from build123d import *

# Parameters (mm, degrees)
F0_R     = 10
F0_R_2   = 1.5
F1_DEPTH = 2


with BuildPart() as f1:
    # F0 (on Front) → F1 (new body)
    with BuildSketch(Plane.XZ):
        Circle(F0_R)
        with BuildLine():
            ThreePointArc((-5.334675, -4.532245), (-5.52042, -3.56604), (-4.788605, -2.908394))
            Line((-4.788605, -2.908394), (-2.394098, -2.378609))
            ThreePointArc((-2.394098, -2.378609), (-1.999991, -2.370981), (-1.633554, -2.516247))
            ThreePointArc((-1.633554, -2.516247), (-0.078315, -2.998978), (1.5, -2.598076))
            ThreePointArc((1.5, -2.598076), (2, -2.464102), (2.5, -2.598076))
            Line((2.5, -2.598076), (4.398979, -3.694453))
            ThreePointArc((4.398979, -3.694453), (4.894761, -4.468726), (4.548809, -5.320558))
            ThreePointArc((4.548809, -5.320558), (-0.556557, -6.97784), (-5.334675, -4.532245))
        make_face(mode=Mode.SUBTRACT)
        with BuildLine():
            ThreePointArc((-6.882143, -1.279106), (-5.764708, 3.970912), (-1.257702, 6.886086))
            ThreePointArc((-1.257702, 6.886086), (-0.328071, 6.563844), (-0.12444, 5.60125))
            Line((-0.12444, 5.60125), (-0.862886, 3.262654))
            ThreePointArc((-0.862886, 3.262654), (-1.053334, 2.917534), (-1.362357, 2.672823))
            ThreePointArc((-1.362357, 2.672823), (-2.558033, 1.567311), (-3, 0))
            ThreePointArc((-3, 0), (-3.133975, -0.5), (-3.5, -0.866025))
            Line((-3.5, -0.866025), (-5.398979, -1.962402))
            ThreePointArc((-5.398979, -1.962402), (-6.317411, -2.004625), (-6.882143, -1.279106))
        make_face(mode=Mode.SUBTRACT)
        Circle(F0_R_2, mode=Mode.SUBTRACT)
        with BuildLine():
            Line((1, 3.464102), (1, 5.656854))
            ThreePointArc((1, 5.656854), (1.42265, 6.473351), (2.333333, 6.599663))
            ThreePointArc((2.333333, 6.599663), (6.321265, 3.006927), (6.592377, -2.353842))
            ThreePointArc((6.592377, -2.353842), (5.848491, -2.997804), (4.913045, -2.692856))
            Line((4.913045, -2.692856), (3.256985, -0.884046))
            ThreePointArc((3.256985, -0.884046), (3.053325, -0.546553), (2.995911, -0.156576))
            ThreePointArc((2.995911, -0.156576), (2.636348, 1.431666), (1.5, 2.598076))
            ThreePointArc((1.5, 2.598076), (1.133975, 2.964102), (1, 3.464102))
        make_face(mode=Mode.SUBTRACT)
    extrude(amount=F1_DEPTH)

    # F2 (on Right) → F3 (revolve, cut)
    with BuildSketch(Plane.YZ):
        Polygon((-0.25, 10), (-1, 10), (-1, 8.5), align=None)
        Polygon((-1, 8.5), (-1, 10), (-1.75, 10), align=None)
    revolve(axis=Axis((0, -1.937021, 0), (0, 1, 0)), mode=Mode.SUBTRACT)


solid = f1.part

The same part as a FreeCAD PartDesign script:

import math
import FreeCAD as App
import Part
import Sketcher
Q = App.Units.Quantity

doc = App.newDocument("Part")
params = doc.addObject("Spreadsheet::Sheet", "Params")
for row, (alias, value) in enumerate([
    ("sketch1_diameter", "20 mm"),
    ("sketch1_diameter2", "3 mm"),
    ("sketch1_radius", "6.999999 mm"),
    ("sketch1_radius2", "1 mm"),
    ("sketch1_radius3", "1 mm"),
    ("pad1_length", "2 mm"),
    ("sketch2_width", "1.5 mm"),
    ("groove_angle", "360 deg"),
], start=1):
    params.set(f"A{row}", alias)
    params.set(f"B{row}", "=" + value)
    params.setAlias(f"B{row}", alias)

body = doc.addObject("PartDesign::Body", "Body")

# Sketch on XZ plane
sketch1 = body.newObject("Sketcher::SketchObject", "Sketch")
sketch1.AttachmentSupport = (doc.getObject("XZ_Plane"), [""])
sketch1.MapMode = "FlatFace"
sketch1.addGeometry([
    Part.Circle(App.Vector(0, 0, 0), App.Vector(0, 0, 1), 10),  # 0
    Part.ArcOfCircle(Part.Circle(App.Vector(0, -0.000001, 0), App.Vector(0, 0, 1), 6.999999), math.radians(-139.64937), math.radians(-49.471217)),  # 1
    Part.ArcOfCircle(Part.Circle(App.Vector(-4.572578, -3.884782, 0), App.Vector(0, 0, 1), 1), math.radians(102.475775), math.radians(220.350611)),  # 2
    Part.LineSegment(App.Vector(-4.788605, -2.908394, 0), App.Vector(-2.394098, -2.378609, 0)),  # 3
    Part.ArcOfCircle(Part.Circle(App.Vector(-2.178072, -3.355002, 0), App.Vector(0, 0, 1), 1.000005), math.radians(57.008425), math.radians(102.475637)),  # 4
    Part.ArcOfCircle(Part.Circle(App.Vector(0, -0.000005, 0), App.Vector(0, 0, 1), 2.999996), math.radians(-122.991785), math.radians(-59.999956)),  # 5
    Part.ArcOfCircle(Part.Circle(App.Vector(2, -3.464106, 0), App.Vector(0, 0, 1), 1.000004), math.radians(60.000127), math.radians(119.999873)),  # 6
    Part.LineSegment(App.Vector(2.5, -2.598076, 0), App.Vector(4.398979, -3.694453, 0)),  # 7
    Part.ArcOfCircle(Part.Circle(App.Vector(3.898979, -4.560478, 0), App.Vector(0, 0, 1), 1), math.radians(-49.47123), math.radians(60.000016)),  # 8
    Part.ArcOfCircle(Part.Circle(App.Vector(-5.898979, -1.096376, 0), App.Vector(0, 0, 1), 1.000001), math.radians(-169.471199), math.radians(-59.999998)),  # 9
    Part.ArcOfCircle(Part.Circle(App.Vector(0, 0, 0), App.Vector(0, 0, 1), 7), math.radians(100.350635), math.radians(190.52878)),  # 10
    Part.ArcOfCircle(Part.Circle(App.Vector(-1.07803, 5.902359, 0), App.Vector(0, 0, 1), 1), math.radians(-17.524234), math.radians(100.35066)),  # 11
    Part.LineSegment(App.Vector(-0.12444, 5.60125, 0), App.Vector(-0.862886, 3.262654, 0)),  # 12
    Part.ArcOfCircle(Part.Circle(App.Vector(-1.816483, 3.563771, 0), App.Vector(0, 0, 1), 1.00001), math.radians(-62.991548), math.radians(-17.524543)),  # 13
    Part.ArcOfCircle(Part.Circle(App.Vector(0.000003, -0.000002, 0), App.Vector(0, 0, 1), 3.000003), math.radians(117.008298), math.radians(179.999963)),  # 14
    Part.ArcOfCircle(Part.Circle(App.Vector(-4.000001, 0.000001, 0), App.Vector(0, 0, 1), 1.000001), math.radians(-59.999968), math.radians(-0.000055)),  # 15
    Part.LineSegment(App.Vector(-3.5, -0.866025, 0), App.Vector(-5.398979, -1.962402, 0)),  # 16
    Part.Circle(App.Vector(0, 0, 0), App.Vector(0, 0, 1), 1.5),  # 17
    Part.ArcOfCircle(Part.Circle(App.Vector(2.000004, 3.464104, 0), App.Vector(0, 0, 1), 1.000004), math.radians(-179.999896), math.radians(-120.000139)),  # 18
    Part.LineSegment(App.Vector(1, 3.464102, 0), App.Vector(1, 5.656854, 0)),  # 19
    Part.ArcOfCircle(Part.Circle(App.Vector(2, 5.656854, 0), App.Vector(0, 0, 1), 1), math.radians(70.528765), math.radians(180.000026)),  # 20
    Part.ArcOfCircle(Part.Circle(App.Vector(0, 0, 0), App.Vector(0, 0, 1), 7), math.radians(-19.649363), math.radians(70.528785)),  # 21
    Part.ArcOfCircle(Part.Circle(App.Vector(5.650609, -2.017578, 0), App.Vector(0, 0, 1), 1.000001), math.radians(-137.524257), math.radians(-19.649432)),  # 22
    Part.LineSegment(App.Vector(4.913045, -2.692856, 0), App.Vector(3.256985, -0.884046, 0)),  # 23
    Part.ArcOfCircle(Part.Circle(App.Vector(3.99455, -0.208767, 0), App.Vector(0, 0, 1), 1.000001), math.radians(177.008308), math.radians(222.475726)),  # 24
    Part.ArcOfCircle(Part.Circle(App.Vector(-0.000001, 0, 0), App.Vector(0, 0, 1), 3), math.radians(-2.991735), math.radians(59.999992)),  # 25
], False)
sketch1.addConstraint([
    Sketcher.Constraint("Coincident", 1, 1, 2, 2),
    Sketcher.Constraint("Coincident", 2, 1, 3, 1),
    Sketcher.Constraint("Coincident", 3, 2, 4, 2),
    Sketcher.Constraint("Coincident", 4, 1, 5, 1),
    Sketcher.Constraint("Coincident", 5, 2, 6, 2),
    Sketcher.Constraint("Coincident", 6, 1, 7, 1),
    Sketcher.Constraint("Coincident", 7, 2, 8, 2),
    Sketcher.Constraint("Coincident", 8, 1, 1, 2),
    Sketcher.Constraint("Coincident", 9, 1, 10, 2),
    Sketcher.Constraint("Coincident", 10, 1, 11, 2),
    Sketcher.Constraint("Coincident", 11, 1, 12, 1),
    Sketcher.Constraint("Coincident", 12, 2, 13, 2),
    Sketcher.Constraint("Coincident", 13, 1, 14, 1),
    Sketcher.Constraint("Coincident", 14, 2, 15, 2),
    Sketcher.Constraint("Coincident", 15, 1, 16, 1),
    Sketcher.Constraint("Coincident", 16, 2, 9, 2),
    Sketcher.Constraint("Coincident", 18, 1, 19, 1),
    Sketcher.Constraint("Coincident", 19, 2, 20, 2),
    Sketcher.Constraint("Coincident", 20, 1, 21, 2),
    Sketcher.Constraint("Coincident", 21, 1, 22, 2),
    Sketcher.Constraint("Coincident", 22, 1, 23, 1),
    Sketcher.Constraint("Coincident", 23, 2, 24, 2),
    Sketcher.Constraint("Coincident", 24, 1, 25, 1),
    Sketcher.Constraint("Coincident", 25, 2, 18, 2),
    Sketcher.Constraint("Vertical", 19),
    Sketcher.Constraint("Coincident", 0, 3, -1, 1),
    Sketcher.Constraint("Coincident", 1, 3, -1, 1),
    Sketcher.Constraint("Coincident", 5, 3, -1, 1),
    Sketcher.Constraint("Coincident", 10, 3, -1, 1),
    Sketcher.Constraint("Coincident", 14, 3, -1, 1),
    Sketcher.Constraint("Coincident", 17, 3, -1, 1),
    Sketcher.Constraint("Coincident", 21, 3, -1, 1),
    Sketcher.Constraint("Coincident", 25, 3, -1, 1),
    Sketcher.Constraint("PointOnObject", 15, 3, -1),
    Sketcher.Constraint("PointOnObject", 14, 2, -1),
    Sketcher.Constraint("Diameter", 0, Q("20 mm")),
    Sketcher.Constraint("Diameter", 17, Q("3 mm")),
    Sketcher.Constraint("Radius", 1, Q("6.999999 mm")),
    Sketcher.Constraint("Radius", 2, Q("1 mm")),
    Sketcher.Constraint("Radius", 8, Q("1 mm")),
    Sketcher.Constraint("Radius", 9, Q("1.000001 mm")),
    Sketcher.Constraint("Radius", 10, Q("7 mm")),
    Sketcher.Constraint("Radius", 11, Q("1 mm")),
    Sketcher.Constraint("Radius", 15, Q("1.000001 mm")),
    Sketcher.Constraint("Radius", 20, Q("1 mm")),
    Sketcher.Constraint("Radius", 21, Q("7 mm")),
    Sketcher.Constraint("Radius", 22, Q("1.000001 mm")),
    Sketcher.Constraint("Radius", 24, Q("1.000001 mm")),
    Sketcher.Constraint("Radius", 25, Q("3 mm")),
    Sketcher.Constraint("DistanceX", -1, 1, 6, 3, Q("2 mm")),
    Sketcher.Constraint("DistanceX", 15, 3, -1, 1, Q("4.000001 mm")),
    Sketcher.Constraint("DistanceX", -1, 1, 20, 3, Q("2 mm")),
    Sketcher.Constraint("DistanceX", 14, 3, 18, 3, Q("2.000001 mm")),
    Sketcher.Constraint("DistanceX", 5, 2, 6, 1, Q("1 mm")),
    Sketcher.Constraint("DistanceX", -1, 1, 5, 2, Q("1.5 mm")),
    Sketcher.Constraint("DistanceX", 15, 1, -1, 1, Q("3.5 mm")),
    Sketcher.Constraint("DistanceX", -1, 1, 25, 2, Q("1.5 mm")),
    Sketcher.Constraint("DistanceX", 8, 3, 7, 2, Q("0.5 mm")),
    Sketcher.Constraint("DistanceX", 9, 3, 16, 2, Q("0.5 mm")),
    Sketcher.Constraint("Radius", 13, Q("1.00001 mm")),
    Sketcher.Constraint("DistanceY", 4, 3, -1, 1, Q("3.355002 mm")),
    Sketcher.Constraint("Radius", 4, Q("1.000005 mm")),
    Sketcher.Constraint("Radius", 5, Q("2.999996 mm")),
    Sketcher.Constraint("Radius", 6, Q("1.000004 mm")),
    Sketcher.Constraint("DistanceY", 19, 1, 19, 2, Q("2.192752 mm")),
    Sketcher.Constraint("DistanceX", 3, 2, -1, 1, Q("2.394098 mm")),
    Sketcher.Constraint("DistanceX", 10, 1, -1, 1, Q("1.257702 mm")),
    Sketcher.Constraint("DistanceY", -1, 1, 18, 1, Q("3.464102 mm")),
    Sketcher.Constraint("DistanceX", 9, 3, 2, 3, Q("1.326401 mm")),
    Sketcher.Constraint("DistanceY", 8, 3, 22, 3, Q("2.542901 mm")),
    Sketcher.Constraint("DistanceY", 6, 1, 22, 3, Q("0.580498 mm")),
    Sketcher.Constraint("DistanceX", 8, 1, 22, 3, Q("1.1018 mm")),
    Sketcher.Constraint("DistanceX", 7, 2, 21, 1, Q("2.193398 mm")),
    Sketcher.Constraint("DistanceY", 6, 1, 24, 1, Q("2.4415 mm")),
    Sketcher.Constraint("DistanceX", 2, 3, -1, 1, Q("4.572578 mm")),
    Sketcher.Constraint("DistanceX", 11, 3, -1, 1, Q("1.07803 mm")),
    Sketcher.Constraint("DistanceY", -1, 1, 13, 3, Q("3.563771 mm")),
    Sketcher.Constraint("DistanceX", -1, 1, 24, 3, Q("3.99455 mm")),
    Sketcher.Constraint("DistanceX", 11, 1, -1, 1, Q("0.12444 mm")),
    Sketcher.Constraint("DistanceY", 1, 1, 9, 3, Q("3.435869 mm")),
    Sketcher.Constraint("DistanceX", 1, 1, 2, 1, Q("0.54607 mm")),
    Sketcher.Constraint("DistanceY", 4, 1, 3, 2, Q("0.137638 mm")),
    Sketcher.Constraint("DistanceY", 9, 1, 9, 3, Q("0.18273 mm")),
    Sketcher.Constraint("DistanceX", 12, 2, 18, 3, Q("2.86289 mm")),
    Sketcher.Constraint("DistanceX", 13, 1, 12, 2, Q("0.499471 mm")),
    Sketcher.Constraint("DistanceY", 20, 3, 20, 1, Q("0.942809 mm")),
    Sketcher.Constraint("DistanceY", 22, 1, 22, 3, Q("0.675278 mm")),
    Sketcher.Constraint("DistanceY", 23, 2, 24, 3, Q("0.675279 mm")),
])
sketch1.setExpression("Constraints[35]", "Params.sketch1_diameter")
sketch1.setExpression("Constraints[36]", "Params.sketch1_diameter2")
sketch1.setExpression("Constraints[37]", "Params.sketch1_radius")
sketch1.setExpression("Constraints[38]", "Params.sketch1_radius2")
sketch1.setExpression("Constraints[39]", "Params.sketch1_radius3")
pad1 = body.newObject("PartDesign::Pad", "Pad")
pad1.Profile = sketch1
pad1.setExpression("Length", "Params.pad1_length")

# Sketch on YZ plane
sketch2 = body.newObject("Sketcher::SketchObject", "Sketch001")
sketch2.AttachmentSupport = (doc.getObject("YZ_Plane"), [""])
sketch2.MapMode = "FlatFace"
sketch2.addGeometry([
    Part.LineSegment(App.Vector(-0.2, 10, 0), App.Vector(-1.8, 10, 0)),
    Part.LineSegment(App.Vector(-1.8, 10, 0), App.Vector(-1, 8.5, 0)),
    Part.LineSegment(App.Vector(-1, 8.5, 0), App.Vector(-0.2, 10, 0)),
], False)
sketch2.addConstraint([
    Sketcher.Constraint("Coincident", 0, 2, 1, 1),
    Sketcher.Constraint("Coincident", 1, 2, 2, 1),
    Sketcher.Constraint("Coincident", 2, 2, 0, 1),
    Sketcher.Constraint("Horizontal", 0),
    Sketcher.Constraint("Equal", 1, 2),
    Sketcher.Constraint("DistanceX", 0, 2, 0, 1, Q("1.5 mm")),
    Sketcher.Constraint("DistanceY", -1, 1, 0, 2, Q("10 mm")),
    Sketcher.Constraint("DistanceX", 1, 2, -1, 1, Q("1 mm")),
    Sketcher.Constraint("DistanceY", -1, 1, 1, 2, Q("8.5 mm")),
])
sketch2.setExpression("Constraints[5]", "Params.sketch2_width")
groove = body.newObject("PartDesign::Groove", "Groove")
groove.Profile = sketch2
groove.ReferenceAxis = (sketch2, ["H_Axis"])
groove.setExpression("Angle", "Params.groove_angle")

doc.recompute()
